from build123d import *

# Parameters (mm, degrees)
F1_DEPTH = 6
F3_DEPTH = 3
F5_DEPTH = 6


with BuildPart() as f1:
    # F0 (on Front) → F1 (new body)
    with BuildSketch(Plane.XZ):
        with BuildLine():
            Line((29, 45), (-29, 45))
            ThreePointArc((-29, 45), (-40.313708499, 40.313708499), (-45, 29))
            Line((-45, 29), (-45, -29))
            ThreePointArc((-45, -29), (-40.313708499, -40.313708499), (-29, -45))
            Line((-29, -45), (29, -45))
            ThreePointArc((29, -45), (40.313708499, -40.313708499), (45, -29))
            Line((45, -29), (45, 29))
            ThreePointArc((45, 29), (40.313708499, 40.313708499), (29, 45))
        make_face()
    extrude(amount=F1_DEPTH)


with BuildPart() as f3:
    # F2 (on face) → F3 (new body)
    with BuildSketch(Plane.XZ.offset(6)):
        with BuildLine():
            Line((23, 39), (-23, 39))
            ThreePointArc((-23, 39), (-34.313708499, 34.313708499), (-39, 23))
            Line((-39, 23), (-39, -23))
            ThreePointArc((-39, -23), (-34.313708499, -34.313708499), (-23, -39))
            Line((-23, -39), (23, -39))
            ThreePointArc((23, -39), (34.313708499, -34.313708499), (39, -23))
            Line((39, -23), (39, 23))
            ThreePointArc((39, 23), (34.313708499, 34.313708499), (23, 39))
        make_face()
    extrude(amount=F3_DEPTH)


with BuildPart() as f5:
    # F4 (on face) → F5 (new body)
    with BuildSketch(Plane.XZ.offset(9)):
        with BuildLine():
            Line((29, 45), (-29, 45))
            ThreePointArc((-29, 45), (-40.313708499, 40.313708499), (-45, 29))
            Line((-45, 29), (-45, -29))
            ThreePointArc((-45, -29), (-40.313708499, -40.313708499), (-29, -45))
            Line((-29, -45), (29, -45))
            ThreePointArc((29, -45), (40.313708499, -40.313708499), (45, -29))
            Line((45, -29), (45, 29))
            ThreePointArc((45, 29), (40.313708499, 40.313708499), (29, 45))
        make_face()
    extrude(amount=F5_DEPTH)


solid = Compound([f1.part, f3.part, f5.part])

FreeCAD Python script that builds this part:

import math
import FreeCAD as App
import Part
import Sketcher
from FreeCAD import Vector
Q = App.Units.Quantity

doc = App.newDocument("Part")
body = doc.addObject("PartDesign::Body", "Body")

# Sketch on XZ plane
sketch1 = body.newObject("Sketcher::SketchObject", "Sketch")
sketch1.AttachmentSupport = (doc.getObject("XZ_Plane"), [""])
sketch1.MapMode = "FlatFace"
sketch1.addGeometry(Part.LineSegment(Vector(29, 45, 0), Vector(-29, 45, 0)), False)
sketch1.addGeometry(Part.ArcOfCircle(Part.Circle(Vector(-29, 29, 0), Vector(0, 0, 1), 16), math.radians(90), math.radians(180)), False)
sketch1.addGeometry(Part.LineSegment(Vector(-45, 29, 0), Vector(-45, -29, 0)), False)
sketch1.addGeometry(Part.ArcOfCircle(Part.Circle(Vector(-29, -29, 0), Vector(0, 0, 1), 16), math.radians(180), math.radians(270)), False)
sketch1.addGeometry(Part.LineSegment(Vector(-29, -45, 0), Vector(29, -45, 0)), False)
sketch1.addGeometry(Part.ArcOfCircle(Part.Circle(Vector(29, -29, 0), Vector(0, 0, 1), 16), math.radians(-90), math.radians(0)), False)
sketch1.addGeometry(Part.LineSegment(Vector(45, -29, 0), Vector(45, 29, 0)), False)
sketch1.addGeometry(Part.ArcOfCircle(Part.Circle(Vector(29, 29, 0), Vector(0, 0, 1), 16), math.radians(0), math.radians(90)), False)
sketch1.addConstraint(Sketcher.Constraint("Tangent", 0, 2, 1, 1))
sketch1.addConstraint(Sketcher.Constraint("Tangent", 1, 2, 2, 1))
sketch1.addConstraint(Sketcher.Constraint("Tangent", 2, 2, 3, 1))
sketch1.addConstraint(Sketcher.Constraint("Tangent", 3, 2, 4, 1))
sketch1.addConstraint(Sketcher.Constraint("Tangent", 4, 2, 5, 1))
sketch1.addConstraint(Sketcher.Constraint("Tangent", 5, 2, 6, 1))
sketch1.addConstraint(Sketcher.Constraint("Tangent", 6, 2, 7, 1))
sketch1.addConstraint(Sketcher.Constraint("Tangent", 7, 2, 0, 1))
sketch1.addConstraint(Sketcher.Constraint("Horizontal", 0))
sketch1.addConstraint(Sketcher.Constraint("Vertical", 2))
sketch1.addConstraint(Sketcher.Constraint("Horizontal", 4))
sketch1.addConstraint(Sketcher.Constraint("Vertical", 6))
sketch1.addConstraint(Sketcher.Constraint("Equal", 1, 3))
sketch1.addConstraint(Sketcher.Constraint("Equal", 3, 5))
sketch1.addConstraint(Sketcher.Constraint("Equal", 5, 7))
sketch1.addConstraint(Sketcher.Constraint("Symmetric", 1, 3, 5, 3, -1, 1))
sketch1.addConstraint(Sketcher.Constraint("Equal", 4, 2))
sketch1.addConstraint(Sketcher.Constraint("Radius", 1, Q("16 mm")))
sketch1.addConstraint(Sketcher.Constraint("DistanceX", 0, 2, 0, 1, Q("58 mm")))
pad1 = body.newObject("PartDesign::Pad", "Pad")
pad1.Profile = sketch1
pad1.Length = 6
body2 = doc.addObject("PartDesign::Body", "Body001")

# Sketch on XZ plane
sketch2 = body2.newObject("Sketcher::SketchObject", "Sketch001")
sketch2.AttachmentSupport = (doc.getObject("XZ_Plane001"), [""])
sketch2.MapMode = "FlatFace"
sketch2.AttachmentOffset = App.Placement(Vector(0, 0, 6), App.Rotation())
sketch2.addGeometry(Part.LineSegment(Vector(23, 39, 0), Vector(-23, 39, 0)), False)
sketch2.addGeometry(Part.ArcOfCircle(Part.Circle(Vector(-23, 23, 0), Vector(0, 0, 1), 16), math.radians(90), math.radians(180)), False)
sketch2.addGeometry(Part.LineSegment(Vector(-39, 23, 0), Vector(-39, -23, 0)), False)
sketch2.addGeometry(Part.ArcOfCircle(Part.Circle(Vector(-23, -23, 0), Vector(0, 0, 1), 16), math.radians(180), math.radians(270)), False)
sketch2.addGeometry(Part.LineSegment(Vector(-23, -39, 0), Vector(23, -39, 0)), False)
sketch2.addGeometry(Part.ArcOfCircle(Part.Circle(Vector(23, -23, 0), Vector(0, 0, 1), 16), math.radians(-90), math.radians(0)), False)
sketch2.addGeometry(Part.LineSegment(Vector(39, -23, 0), Vector(39, 23, 0)), False)
sketch2.addGeometry(Part.ArcOfCircle(Part.Circle(Vector(23, 23, 0), Vector(0, 0, 1), 16), math.radians(0), math.radians(90)), False)
sketch2.addConstraint(Sketcher.Constraint("Tangent", 0, 2, 1, 1))
sketch2.addConstraint(Sketcher.Constraint("Tangent", 1, 2, 2, 1))
sketch2.addConstraint(Sketcher.Constraint("Tangent", 2, 2, 3, 1))
sketch2.addConstraint(Sketcher.Constraint("Tangent", 3, 2, 4, 1))
sketch2.addConstraint(Sketcher.Constraint("Tangent", 4, 2, 5, 1))
sketch2.addConstraint(Sketcher.Constraint("Tangent", 5, 2, 6, 1))
sketch2.addConstraint(Sketcher.Constraint("Tangent", 6, 2, 7, 1))
sketch2.addConstraint(Sketcher.Constraint("Tangent", 7, 2, 0, 1))
sketch2.addConstraint(Sketcher.Constraint("Horizontal", 0))
sketch2.addConstraint(Sketcher.Constraint("Vertical", 2))
sketch2.addConstraint(Sketcher.Constraint("Horizontal", 4))
sketch2.addConstraint(Sketcher.Constraint("Vertical", 6))
sketch2.addConstraint(Sketcher.Constraint("Equal", 1, 3))
sketch2.addConstraint(Sketcher.Constraint("Equal", 3, 5))
sketch2.addConstraint(Sketcher.Constraint("Equal", 5, 7))
sketch2.addConstraint(Sketcher.Constraint("Symmetric", 1, 3, 5, 3, -1, 1))
sketch2.addConstraint(Sketcher.Constraint("Equal", 4, 2))
sketch2.addConstraint(Sketcher.Constraint("Radius", 1, Q("16 mm")))
sketch2.addConstraint(Sketcher.Constraint("DistanceX", 0, 2, 0, 1, Q("46 mm")))
pad2 = body2.newObject("PartDesign::Pad", "Pad001")
pad2.Profile = sketch2
pad2.Length = 3
body3 = doc.addObject("PartDesign::Body", "Body002")

# Sketch on XZ plane
sketch3 = body3.newObject("Sketcher::SketchObject", "Sketch002")
sketch3.AttachmentSupport = (doc.getObject("XZ_Plane002"), [""])
sketch3.MapMode = "FlatFace"
sketch3.AttachmentOffset = App.Placement(Vector(0, 0, 9), App.Rotation())
sketch3.addGeometry(Part.LineSegment(Vector(29, 45, 0), Vector(-29, 45, 0)), False)
sketch3.addGeometry(Part.ArcOfCircle(Part.Circle(Vector(-29, 29, 0), Vector(0, 0, 1), 16), math.radians(90), math.radians(180)), False)
sketch3.addGeometry(Part.LineSegment(Vector(-45, 29, 0), Vector(-45, -29, 0)), False)
sketch3.addGeometry(Part.ArcOfCircle(Part.Circle(Vector(-29, -29, 0), Vector(0, 0, 1), 16), math.radians(180), math.radians(270)), False)
sketch3.addGeometry(Part.LineSegment(Vector(-29, -45, 0), Vector(29, -45, 0)), False)
sketch3.addGeometry(Part.ArcOfCircle(Part.Circle(Vector(29, -29, 0), Vector(0, 0, 1), 16), math.radians(-90), math.radians(0)), False)
sketch3.addGeometry(Part.LineSegment(Vector(45, -29, 0), Vector(45, 29, 0)), False)
sketch3.addGeometry(Part.ArcOfCircle(Part.Circle(Vector(29, 29, 0), Vector(0, 0, 1), 16), math.radians(0), math.radians(90)), False)
sketch3.addConstraint(Sketcher.Constraint("Tangent", 0, 2, 1, 1))
sketch3.addConstraint(Sketcher.Constraint("Tangent", 1, 2, 2, 1))
sketch3.addConstraint(Sketcher.Constraint("Tangent", 2, 2, 3, 1))
sketch3.addConstraint(Sketcher.Constraint("Tangent", 3, 2, 4, 1))
sketch3.addConstraint(Sketcher.Constraint("Tangent", 4, 2, 5, 1))
sketch3.addConstraint(Sketcher.Constraint("Tangent", 5, 2, 6, 1))
sketch3.addConstraint(Sketcher.Constraint("Tangent", 6, 2, 7, 1))
sketch3.addConstraint(Sketcher.Constraint("Tangent", 7, 2, 0, 1))
sketch3.addConstraint(Sketcher.Constraint("Horizontal", 0))
sketch3.addConstraint(Sketcher.Constraint("Vertical", 2))
sketch3.addConstraint(Sketcher.Constraint("Horizontal", 4))
sketch3.addConstraint(Sketcher.Constraint("Vertical", 6))
sketch3.addConstraint(Sketcher.Constraint("Equal", 1, 3))
sketch3.addConstraint(Sketcher.Constraint("Equal", 3, 5))
sketch3.addConstraint(Sketcher.Constraint("Equal", 5, 7))
sketch3.addConstraint(Sketcher.Constraint("Symmetric", 1, 3, 5, 3, -1, 1))
sketch3.addConstraint(Sketcher.Constraint("Equal", 4, 2))
sketch3.addConstraint(Sketcher.Constraint("Radius", 1, Q("16 mm")))
sketch3.addConstraint(Sketcher.Constraint("DistanceX", 0, 2, 0, 1, Q("58 mm")))
pad3 = body3.newObject("PartDesign::Pad", "Pad002")
pad3.Profile = sketch3
pad3.Length = 6

doc.recompute()
